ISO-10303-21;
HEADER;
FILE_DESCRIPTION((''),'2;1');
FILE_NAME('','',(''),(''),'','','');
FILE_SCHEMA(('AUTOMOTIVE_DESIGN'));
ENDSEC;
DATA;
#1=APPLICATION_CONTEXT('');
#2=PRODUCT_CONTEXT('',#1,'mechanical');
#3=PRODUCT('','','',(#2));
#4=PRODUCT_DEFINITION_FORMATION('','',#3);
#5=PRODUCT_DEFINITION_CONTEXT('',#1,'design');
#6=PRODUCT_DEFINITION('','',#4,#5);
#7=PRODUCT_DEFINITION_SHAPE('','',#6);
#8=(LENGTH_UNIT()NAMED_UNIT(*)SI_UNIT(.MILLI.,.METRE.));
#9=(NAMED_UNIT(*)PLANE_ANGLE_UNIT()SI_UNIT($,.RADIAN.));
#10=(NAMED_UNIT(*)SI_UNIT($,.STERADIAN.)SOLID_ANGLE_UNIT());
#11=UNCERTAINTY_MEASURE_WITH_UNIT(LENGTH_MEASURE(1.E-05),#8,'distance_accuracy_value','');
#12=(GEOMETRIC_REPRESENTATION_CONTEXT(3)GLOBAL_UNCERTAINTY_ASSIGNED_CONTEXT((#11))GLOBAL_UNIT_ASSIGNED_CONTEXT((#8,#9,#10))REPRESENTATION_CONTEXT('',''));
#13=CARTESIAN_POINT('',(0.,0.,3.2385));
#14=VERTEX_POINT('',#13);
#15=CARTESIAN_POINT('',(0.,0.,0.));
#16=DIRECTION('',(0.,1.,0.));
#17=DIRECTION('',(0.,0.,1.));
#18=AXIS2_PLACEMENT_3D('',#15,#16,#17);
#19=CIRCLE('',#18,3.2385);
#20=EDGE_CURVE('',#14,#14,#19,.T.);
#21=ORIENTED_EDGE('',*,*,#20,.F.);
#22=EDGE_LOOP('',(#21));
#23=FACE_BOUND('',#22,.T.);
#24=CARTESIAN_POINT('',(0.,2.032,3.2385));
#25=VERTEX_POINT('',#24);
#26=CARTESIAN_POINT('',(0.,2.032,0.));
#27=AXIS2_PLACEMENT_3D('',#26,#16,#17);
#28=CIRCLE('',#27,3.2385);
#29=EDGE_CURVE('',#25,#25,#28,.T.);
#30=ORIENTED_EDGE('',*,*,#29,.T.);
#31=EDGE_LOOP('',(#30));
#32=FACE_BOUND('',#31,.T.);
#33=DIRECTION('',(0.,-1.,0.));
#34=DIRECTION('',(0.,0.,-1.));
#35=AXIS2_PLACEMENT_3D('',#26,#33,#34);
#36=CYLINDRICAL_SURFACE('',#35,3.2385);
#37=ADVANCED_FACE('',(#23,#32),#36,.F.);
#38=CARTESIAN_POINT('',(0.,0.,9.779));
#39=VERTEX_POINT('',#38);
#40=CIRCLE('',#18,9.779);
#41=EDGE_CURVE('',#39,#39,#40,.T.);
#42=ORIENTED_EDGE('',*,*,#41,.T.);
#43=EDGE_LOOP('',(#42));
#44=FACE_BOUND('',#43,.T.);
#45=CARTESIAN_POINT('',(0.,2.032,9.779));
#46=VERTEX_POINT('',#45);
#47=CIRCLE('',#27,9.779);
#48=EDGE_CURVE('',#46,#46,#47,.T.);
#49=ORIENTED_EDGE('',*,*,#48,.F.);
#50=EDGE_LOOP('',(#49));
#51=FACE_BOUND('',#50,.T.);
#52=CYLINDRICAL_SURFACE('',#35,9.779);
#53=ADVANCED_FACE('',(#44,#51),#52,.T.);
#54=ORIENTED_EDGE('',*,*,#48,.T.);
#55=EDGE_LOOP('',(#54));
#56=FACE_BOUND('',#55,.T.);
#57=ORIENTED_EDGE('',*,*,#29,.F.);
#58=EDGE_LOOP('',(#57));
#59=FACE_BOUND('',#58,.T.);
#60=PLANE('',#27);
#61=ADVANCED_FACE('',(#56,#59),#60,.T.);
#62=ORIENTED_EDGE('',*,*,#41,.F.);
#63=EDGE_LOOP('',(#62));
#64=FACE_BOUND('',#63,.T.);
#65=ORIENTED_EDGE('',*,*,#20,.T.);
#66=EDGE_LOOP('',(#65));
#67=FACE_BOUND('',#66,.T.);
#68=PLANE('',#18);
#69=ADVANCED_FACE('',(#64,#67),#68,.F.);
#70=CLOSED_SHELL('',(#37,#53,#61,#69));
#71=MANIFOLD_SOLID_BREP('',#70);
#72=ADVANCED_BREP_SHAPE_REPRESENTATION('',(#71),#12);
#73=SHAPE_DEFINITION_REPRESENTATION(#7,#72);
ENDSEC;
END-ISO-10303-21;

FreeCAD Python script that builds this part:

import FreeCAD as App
import Part
import Sketcher
from FreeCAD import Vector
Q = App.Units.Quantity

doc = App.newDocument("Part")
body = doc.addObject("PartDesign::Body", "Body")

sketch1 = doc.addObject("Sketcher::SketchObject", "Sketch")
body.addObject(sketch1)
sketch1.AttachmentSupport = (doc.XZ_Plane, [""])
sketch1.MapMode = "FlatFace"
sketch1.addGeometry([
    Part.Circle(Vector(0, 0, 0), Vector(0, 0, 1), 9.8),
    Part.Circle(Vector(0, 0, 0), Vector(0, 0, 1), 3.2),
], False)
sketch1.addConstraint([
    Sketcher.Constraint("Coincident", 0, 3, -1, 1),
    Sketcher.Constraint("Coincident", 1, 3, -1, 1),
    Sketcher.Constraint("Diameter", 0, Q("0.77 in")),
    Sketcher.Constraint("Diameter", 1, Q("0.255 in")),
])
pad1 = doc.addObject("PartDesign::Pad", "Pad")
body.addObject(pad1)
pad1.Profile = sketch1
pad1.Length = Q("0.08 in")
pad1.Reversed = True

doc.recompute()
